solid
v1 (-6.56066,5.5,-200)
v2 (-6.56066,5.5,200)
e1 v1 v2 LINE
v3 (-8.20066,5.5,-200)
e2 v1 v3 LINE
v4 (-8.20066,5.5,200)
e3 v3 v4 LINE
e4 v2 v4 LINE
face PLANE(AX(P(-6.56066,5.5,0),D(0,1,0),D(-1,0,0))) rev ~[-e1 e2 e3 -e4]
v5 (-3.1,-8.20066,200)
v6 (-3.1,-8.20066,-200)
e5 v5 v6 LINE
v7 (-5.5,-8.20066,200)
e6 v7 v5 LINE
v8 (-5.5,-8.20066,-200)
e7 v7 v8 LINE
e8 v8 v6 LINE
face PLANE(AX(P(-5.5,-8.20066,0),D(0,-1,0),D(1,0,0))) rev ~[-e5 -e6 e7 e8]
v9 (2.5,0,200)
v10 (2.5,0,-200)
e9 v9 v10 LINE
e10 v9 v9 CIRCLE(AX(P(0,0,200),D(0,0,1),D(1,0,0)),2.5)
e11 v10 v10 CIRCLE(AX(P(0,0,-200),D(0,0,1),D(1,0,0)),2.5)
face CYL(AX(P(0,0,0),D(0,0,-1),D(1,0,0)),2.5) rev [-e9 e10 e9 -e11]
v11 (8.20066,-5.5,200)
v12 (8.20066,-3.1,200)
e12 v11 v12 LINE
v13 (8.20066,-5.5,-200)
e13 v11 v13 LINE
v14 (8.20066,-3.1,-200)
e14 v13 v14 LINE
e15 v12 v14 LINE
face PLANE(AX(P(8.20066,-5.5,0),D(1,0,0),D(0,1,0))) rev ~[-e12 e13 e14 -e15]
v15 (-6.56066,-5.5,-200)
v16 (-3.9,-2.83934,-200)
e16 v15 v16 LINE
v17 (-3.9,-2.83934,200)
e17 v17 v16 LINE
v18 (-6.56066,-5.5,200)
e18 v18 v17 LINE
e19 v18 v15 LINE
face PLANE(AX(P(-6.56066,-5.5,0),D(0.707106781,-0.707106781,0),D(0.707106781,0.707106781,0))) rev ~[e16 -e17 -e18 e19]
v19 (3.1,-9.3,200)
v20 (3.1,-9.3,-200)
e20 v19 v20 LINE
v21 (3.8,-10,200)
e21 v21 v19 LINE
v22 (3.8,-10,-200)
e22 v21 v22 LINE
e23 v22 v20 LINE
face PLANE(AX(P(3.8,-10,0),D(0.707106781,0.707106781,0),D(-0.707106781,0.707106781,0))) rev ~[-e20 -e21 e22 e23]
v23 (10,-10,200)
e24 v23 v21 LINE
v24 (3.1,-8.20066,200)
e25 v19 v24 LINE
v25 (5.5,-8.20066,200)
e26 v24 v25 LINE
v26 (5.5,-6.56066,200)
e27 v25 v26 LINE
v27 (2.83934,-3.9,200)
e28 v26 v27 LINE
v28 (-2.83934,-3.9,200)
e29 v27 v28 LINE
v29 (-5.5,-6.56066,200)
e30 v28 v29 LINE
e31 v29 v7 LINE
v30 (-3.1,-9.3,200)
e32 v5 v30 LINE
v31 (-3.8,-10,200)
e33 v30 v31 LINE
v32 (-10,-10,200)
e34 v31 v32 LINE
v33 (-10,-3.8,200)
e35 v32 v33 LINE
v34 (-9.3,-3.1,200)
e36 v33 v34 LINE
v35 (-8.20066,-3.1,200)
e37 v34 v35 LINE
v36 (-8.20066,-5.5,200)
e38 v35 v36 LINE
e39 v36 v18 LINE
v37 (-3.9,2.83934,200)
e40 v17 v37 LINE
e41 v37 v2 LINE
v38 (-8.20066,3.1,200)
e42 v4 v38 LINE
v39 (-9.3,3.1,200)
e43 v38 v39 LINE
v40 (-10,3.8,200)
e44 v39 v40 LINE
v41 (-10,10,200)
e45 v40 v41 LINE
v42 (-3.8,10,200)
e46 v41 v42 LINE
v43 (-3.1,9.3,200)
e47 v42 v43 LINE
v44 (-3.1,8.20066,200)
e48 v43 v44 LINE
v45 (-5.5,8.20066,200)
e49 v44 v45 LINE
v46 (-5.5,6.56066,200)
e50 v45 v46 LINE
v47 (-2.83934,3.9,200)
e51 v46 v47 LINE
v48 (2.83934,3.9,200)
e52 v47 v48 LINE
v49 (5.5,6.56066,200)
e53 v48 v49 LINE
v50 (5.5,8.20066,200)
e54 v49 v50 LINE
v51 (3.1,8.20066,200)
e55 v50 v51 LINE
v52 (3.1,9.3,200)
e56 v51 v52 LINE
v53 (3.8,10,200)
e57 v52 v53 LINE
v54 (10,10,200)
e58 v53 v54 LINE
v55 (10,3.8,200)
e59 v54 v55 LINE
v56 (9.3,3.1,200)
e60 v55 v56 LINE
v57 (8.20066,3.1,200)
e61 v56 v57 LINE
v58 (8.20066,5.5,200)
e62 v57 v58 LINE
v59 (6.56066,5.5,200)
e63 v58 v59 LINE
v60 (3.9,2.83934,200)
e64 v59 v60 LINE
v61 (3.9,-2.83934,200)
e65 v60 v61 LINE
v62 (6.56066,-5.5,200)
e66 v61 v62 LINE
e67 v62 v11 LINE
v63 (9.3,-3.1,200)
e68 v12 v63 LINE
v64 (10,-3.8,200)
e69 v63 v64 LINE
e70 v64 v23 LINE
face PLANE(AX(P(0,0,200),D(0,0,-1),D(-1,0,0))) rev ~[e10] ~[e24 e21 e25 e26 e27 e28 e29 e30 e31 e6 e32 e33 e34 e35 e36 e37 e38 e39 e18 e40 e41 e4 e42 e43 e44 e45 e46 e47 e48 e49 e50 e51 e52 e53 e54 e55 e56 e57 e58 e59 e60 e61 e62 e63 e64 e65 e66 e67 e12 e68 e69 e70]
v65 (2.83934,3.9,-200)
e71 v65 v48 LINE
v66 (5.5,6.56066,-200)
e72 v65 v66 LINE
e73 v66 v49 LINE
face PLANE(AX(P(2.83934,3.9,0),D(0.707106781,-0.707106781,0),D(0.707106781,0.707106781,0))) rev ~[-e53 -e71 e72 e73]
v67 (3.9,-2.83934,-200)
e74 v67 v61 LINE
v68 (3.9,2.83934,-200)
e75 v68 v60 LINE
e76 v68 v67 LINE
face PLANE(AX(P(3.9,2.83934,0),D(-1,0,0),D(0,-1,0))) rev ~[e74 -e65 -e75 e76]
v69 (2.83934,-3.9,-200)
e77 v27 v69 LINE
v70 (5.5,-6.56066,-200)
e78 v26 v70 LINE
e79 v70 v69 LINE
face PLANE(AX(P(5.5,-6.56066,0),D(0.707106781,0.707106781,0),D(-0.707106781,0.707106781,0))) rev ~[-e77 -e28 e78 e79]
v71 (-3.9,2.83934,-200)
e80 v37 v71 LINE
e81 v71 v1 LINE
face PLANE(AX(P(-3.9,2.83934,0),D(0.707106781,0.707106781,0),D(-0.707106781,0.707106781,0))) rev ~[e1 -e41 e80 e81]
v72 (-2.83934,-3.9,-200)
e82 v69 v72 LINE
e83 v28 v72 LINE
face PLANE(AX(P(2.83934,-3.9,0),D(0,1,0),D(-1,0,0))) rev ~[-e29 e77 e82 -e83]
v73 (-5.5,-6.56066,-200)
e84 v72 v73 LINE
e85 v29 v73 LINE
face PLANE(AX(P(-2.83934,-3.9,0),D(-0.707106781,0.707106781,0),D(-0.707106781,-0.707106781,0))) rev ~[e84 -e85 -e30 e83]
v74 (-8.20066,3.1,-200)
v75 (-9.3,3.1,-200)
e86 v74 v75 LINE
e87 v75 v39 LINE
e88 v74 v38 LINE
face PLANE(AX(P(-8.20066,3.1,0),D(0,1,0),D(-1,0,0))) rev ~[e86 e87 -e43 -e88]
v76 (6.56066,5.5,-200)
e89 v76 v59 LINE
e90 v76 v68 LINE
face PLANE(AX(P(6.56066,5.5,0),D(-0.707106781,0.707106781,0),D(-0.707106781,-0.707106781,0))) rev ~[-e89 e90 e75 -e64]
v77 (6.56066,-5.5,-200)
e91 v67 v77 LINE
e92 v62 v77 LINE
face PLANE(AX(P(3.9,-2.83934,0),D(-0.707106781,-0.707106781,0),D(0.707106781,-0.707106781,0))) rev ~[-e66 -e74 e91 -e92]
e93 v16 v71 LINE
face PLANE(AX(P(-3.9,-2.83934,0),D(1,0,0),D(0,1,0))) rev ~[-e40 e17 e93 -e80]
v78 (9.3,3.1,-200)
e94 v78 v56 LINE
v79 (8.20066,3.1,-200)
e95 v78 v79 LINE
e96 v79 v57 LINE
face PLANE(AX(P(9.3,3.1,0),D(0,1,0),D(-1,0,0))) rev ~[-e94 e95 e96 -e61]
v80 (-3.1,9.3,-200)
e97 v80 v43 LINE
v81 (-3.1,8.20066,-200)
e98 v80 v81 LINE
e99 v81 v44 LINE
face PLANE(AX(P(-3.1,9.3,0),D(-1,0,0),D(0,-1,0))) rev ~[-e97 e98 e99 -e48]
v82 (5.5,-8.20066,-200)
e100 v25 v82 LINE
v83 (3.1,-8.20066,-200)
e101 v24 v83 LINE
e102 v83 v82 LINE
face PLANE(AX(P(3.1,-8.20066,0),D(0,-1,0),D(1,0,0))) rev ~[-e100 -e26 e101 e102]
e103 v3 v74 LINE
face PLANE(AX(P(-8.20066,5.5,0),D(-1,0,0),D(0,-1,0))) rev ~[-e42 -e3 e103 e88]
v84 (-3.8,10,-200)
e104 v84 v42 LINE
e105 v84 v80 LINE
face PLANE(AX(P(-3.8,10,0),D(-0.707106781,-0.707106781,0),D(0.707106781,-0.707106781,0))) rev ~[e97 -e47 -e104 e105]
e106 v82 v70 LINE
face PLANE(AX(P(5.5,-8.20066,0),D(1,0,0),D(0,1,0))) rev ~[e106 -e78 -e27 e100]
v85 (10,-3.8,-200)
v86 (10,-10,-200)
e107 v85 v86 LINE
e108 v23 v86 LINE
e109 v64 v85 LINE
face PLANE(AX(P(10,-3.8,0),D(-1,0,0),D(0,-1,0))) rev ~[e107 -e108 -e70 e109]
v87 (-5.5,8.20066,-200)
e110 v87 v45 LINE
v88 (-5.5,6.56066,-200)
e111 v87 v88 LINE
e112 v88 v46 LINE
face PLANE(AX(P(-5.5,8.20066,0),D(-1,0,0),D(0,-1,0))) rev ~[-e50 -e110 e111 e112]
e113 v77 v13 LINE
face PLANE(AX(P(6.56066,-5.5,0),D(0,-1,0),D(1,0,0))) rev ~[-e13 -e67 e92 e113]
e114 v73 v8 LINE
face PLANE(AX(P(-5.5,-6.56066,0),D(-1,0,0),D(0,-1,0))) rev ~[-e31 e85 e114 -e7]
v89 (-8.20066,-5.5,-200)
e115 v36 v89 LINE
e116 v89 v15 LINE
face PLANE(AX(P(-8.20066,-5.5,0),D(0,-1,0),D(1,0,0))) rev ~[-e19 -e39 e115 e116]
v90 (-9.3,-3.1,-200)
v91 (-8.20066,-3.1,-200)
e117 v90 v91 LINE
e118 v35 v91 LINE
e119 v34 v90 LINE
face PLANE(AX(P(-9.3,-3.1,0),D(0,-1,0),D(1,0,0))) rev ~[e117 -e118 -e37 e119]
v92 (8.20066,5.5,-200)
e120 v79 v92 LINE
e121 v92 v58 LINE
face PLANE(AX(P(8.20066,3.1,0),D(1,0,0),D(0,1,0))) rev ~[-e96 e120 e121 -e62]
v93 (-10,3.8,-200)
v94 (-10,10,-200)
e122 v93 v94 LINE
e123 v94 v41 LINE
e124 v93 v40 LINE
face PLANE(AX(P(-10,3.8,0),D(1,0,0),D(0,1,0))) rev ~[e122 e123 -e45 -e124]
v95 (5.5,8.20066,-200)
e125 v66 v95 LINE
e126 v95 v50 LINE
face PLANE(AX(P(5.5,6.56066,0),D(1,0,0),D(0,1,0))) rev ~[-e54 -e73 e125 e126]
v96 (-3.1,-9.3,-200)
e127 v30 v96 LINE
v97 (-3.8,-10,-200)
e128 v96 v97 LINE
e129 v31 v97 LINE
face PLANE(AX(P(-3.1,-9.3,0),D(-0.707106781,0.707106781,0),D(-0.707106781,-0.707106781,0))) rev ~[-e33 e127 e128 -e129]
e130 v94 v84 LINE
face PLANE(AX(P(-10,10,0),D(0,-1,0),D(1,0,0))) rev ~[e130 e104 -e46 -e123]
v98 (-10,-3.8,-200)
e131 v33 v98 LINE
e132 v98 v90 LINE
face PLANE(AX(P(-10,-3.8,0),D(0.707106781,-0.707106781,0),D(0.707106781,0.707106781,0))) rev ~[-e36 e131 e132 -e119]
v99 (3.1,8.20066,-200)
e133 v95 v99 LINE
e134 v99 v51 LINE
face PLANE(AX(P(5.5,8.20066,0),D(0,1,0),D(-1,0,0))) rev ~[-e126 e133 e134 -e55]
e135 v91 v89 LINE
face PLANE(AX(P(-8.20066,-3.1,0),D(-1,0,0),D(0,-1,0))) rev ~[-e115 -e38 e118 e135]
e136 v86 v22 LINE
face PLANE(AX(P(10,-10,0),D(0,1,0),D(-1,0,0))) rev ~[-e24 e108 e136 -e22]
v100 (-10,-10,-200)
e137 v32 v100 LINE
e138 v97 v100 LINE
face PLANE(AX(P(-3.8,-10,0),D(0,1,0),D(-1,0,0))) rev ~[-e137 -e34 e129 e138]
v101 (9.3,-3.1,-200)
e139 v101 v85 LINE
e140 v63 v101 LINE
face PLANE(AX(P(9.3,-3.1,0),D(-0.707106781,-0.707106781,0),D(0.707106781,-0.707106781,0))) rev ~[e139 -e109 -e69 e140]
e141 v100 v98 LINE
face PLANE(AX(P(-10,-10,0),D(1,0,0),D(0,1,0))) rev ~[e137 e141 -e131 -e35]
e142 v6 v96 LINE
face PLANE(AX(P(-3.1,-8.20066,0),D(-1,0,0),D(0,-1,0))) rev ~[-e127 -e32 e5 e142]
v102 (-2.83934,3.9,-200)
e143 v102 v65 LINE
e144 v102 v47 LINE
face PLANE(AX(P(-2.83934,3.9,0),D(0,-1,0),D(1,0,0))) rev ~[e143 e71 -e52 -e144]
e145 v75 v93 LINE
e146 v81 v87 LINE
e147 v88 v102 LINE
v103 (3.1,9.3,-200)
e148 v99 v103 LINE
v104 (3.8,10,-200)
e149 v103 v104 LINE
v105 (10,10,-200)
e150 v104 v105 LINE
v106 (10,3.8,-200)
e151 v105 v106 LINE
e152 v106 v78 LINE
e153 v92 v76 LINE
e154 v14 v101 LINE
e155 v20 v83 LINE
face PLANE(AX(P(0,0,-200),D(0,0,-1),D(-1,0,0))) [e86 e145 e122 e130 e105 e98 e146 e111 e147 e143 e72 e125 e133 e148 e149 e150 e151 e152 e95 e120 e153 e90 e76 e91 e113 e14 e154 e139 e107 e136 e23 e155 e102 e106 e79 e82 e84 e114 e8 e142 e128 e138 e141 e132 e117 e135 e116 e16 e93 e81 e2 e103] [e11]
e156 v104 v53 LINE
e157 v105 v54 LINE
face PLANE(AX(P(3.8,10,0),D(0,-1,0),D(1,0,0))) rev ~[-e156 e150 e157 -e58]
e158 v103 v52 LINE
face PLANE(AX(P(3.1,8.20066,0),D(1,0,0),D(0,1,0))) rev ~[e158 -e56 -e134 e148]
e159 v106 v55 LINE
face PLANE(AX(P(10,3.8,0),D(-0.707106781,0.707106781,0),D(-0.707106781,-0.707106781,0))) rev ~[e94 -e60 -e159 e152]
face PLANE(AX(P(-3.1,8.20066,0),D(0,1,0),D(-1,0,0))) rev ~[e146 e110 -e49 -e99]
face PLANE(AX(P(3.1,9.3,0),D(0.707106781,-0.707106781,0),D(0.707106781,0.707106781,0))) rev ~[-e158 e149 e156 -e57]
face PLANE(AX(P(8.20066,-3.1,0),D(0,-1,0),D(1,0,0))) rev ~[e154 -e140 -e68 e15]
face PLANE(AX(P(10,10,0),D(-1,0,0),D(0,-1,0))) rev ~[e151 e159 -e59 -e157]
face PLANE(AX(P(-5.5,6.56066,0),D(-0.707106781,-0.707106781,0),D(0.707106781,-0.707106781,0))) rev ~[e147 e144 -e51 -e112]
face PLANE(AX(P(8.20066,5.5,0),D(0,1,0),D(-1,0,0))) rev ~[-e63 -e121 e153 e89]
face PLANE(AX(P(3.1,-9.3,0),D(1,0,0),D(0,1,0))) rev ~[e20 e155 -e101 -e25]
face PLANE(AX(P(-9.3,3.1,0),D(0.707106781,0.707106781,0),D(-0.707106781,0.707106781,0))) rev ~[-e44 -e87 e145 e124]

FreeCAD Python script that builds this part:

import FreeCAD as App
import Part
import Sketcher

V = App.Vector


def add_polygon(sketch, points):
    """Adds a closed chain of lines whose ends are joined by coincident constraints."""
    first, n = sketch.GeometryCount, len(points)
    for a, b in zip(points, points[1:] + points[:1]):
        sketch.addGeometry(Part.LineSegment(App.Vector(*a, 0), App.Vector(*b, 0)), False)
    for i in range(n):
        sketch.addConstraint(Sketcher.Constraint("Coincident", first + i, 2, first + (i + 1) % n, 1))

doc = App.newDocument("Part")
body = doc.addObject("PartDesign::Body", "Body")

# Sketch on XY plane
sketch1 = doc.addObject("Sketcher::SketchObject", "Sketch")
body.addObject(sketch1)
sketch1.AttachmentSupport = (doc.XY_Plane, [""])
sketch1.MapMode = "FlatFace"
add_polygon(sketch1, [(6.6, -5.5), (3.9, -2.8), (3.9, 2.8), (6.6, 5.5), (8.2, 5.5), (8.2, 3.1), (9.3, 3.1), (10, 3.8), (10, 10), (3.8, 10), (3.1, 9.3), (3.1, 8.2), (5.5, 8.2), (5.5, 6.6), (2.8, 3.9), (-2.8, 3.9), (-5.5, 6.6), (-5.5, 8.2), (-3.1, 8.2), (-3.1, 9.3), (-3.8, 10), (-10, 10), (-10, 3.8), (-9.3, 3.1), (-8.2, 3.1), (-8.2, 5.5), (-6.6, 5.5), (-3.9, 2.8), (-3.9, -2.8), (-6.6, -5.5), (-8.2, -5.5), (-8.2, -3.1), (-9.3, -3.1), (-10, -3.8), (-10, -10), (-3.8, -10), (-3.1, -9.3), (-3.1, -8.2), (-5.5, -8.2), (-5.5, -6.6), (-2.8, -3.9), (2.8, -3.9), (5.5, -6.6), (5.5, -8.2), (3.1, -8.2), (3.1, -9.3), (3.8, -10), (10, -10), (10, -3.8), (9.3, -3.1), (8.2, -3.1), (8.2, -5.5)])  # lines 0-51
sketch1.addGeometry(Part.Circle(V(0, 0, 0), V(0, 0, 1), 2.5), False)  # 52
sketch1.addConstraint(Sketcher.Constraint("Vertical", 1))
sketch1.addConstraint(Sketcher.Constraint("Horizontal", 3))
sketch1.addConstraint(Sketcher.Constraint("Vertical", 4))
sketch1.addConstraint(Sketcher.Constraint("Horizontal", 5))
sketch1.addConstraint(Sketcher.Constraint("Vertical", 7))
sketch1.addConstraint(Sketcher.Constraint("Horizontal", 8))
sketch1.addConstraint(Sketcher.Constraint("Vertical", 10))
sketch1.addConstraint(Sketcher.Constraint("Horizontal", 11))
sketch1.addConstraint(Sketcher.Constraint("Vertical", 12))
sketch1.addConstraint(Sketcher.Constraint("Horizontal", 14))
sketch1.addConstraint(Sketcher.Constraint("Vertical", 16))
sketch1.addConstraint(Sketcher.Constraint("Horizontal", 17))
sketch1.addConstraint(Sketcher.Constraint("Vertical", 18))
sketch1.addConstraint(Sketcher.Constraint("Horizontal", 20))
sketch1.addConstraint(Sketcher.Constraint("Vertical", 21))
sketch1.addConstraint(Sketcher.Constraint("Horizontal", 23))
sketch1.addConstraint(Sketcher.Constraint("Vertical", 24))
sketch1.addConstraint(Sketcher.Constraint("Horizontal", 25))
sketch1.addConstraint(Sketcher.Constraint("Vertical", 27))
sketch1.addConstraint(Sketcher.Constraint("Horizontal", 29))
sketch1.addConstraint(Sketcher.Constraint("Vertical", 30))
sketch1.addConstraint(Sketcher.Constraint("Horizontal", 31))
sketch1.addConstraint(Sketcher.Constraint("Vertical", 33))
sketch1.addConstraint(Sketcher.Constraint("Horizontal", 34))
sketch1.addConstraint(Sketcher.Constraint("Vertical", 36))
sketch1.addConstraint(Sketcher.Constraint("Horizontal", 37))
sketch1.addConstraint(Sketcher.Constraint("Vertical", 38))
sketch1.addConstraint(Sketcher.Constraint("Horizontal", 40))
sketch1.addConstraint(Sketcher.Constraint("Vertical", 42))
sketch1.addConstraint(Sketcher.Constraint("Horizontal", 43))
sketch1.addConstraint(Sketcher.Constraint("Vertical", 44))
sketch1.addConstraint(Sketcher.Constraint("Horizontal", 46))
sketch1.addConstraint(Sketcher.Constraint("Vertical", 47))
sketch1.addConstraint(Sketcher.Constraint("Horizontal", 49))
sketch1.addConstraint(Sketcher.Constraint("Vertical", 50))
sketch1.addConstraint(Sketcher.Constraint("Horizontal", 51))
sketch1.addConstraint(Sketcher.Constraint("Coincident", 52, 3, -1, 1))
sketch1.addConstraint(Sketcher.Constraint("Symmetric", 0, 2, 26, 2, -1, 1))
sketch1.addConstraint(Sketcher.Constraint("Symmetric", 2, 2, 28, 2, -1, 1))
sketch1.addConstraint(Sketcher.Constraint("Symmetric", 4, 2, 30, 2, -1, 1))
sketch1.addConstraint(Sketcher.Constraint("Symmetric", 6, 2, 32, 2, -1, 1))
sketch1.addConstraint(Sketcher.Constraint("Symmetric", 8, 2, 34, 2, -1, 1))
sketch1.addConstraint(Sketcher.Constraint("Symmetric", 9, 2, 35, 2, -1, 1))
sketch1.addConstraint(Sketcher.Constraint("Symmetric", 11, 2, 37, 2, -1, 1))
sketch1.addConstraint(Sketcher.Constraint("Symmetric", 13, 2, 39, 2, -1, 1))
sketch1.addConstraint(Sketcher.Constraint("Symmetric", 15, 2, 41, 2, -1, 1))
sketch1.addConstraint(Sketcher.Constraint("Symmetric", 17, 2, 43, 2, -1, 1))
sketch1.addConstraint(Sketcher.Constraint("Symmetric", 19, 2, 45, 2, -1, 1))
sketch1.addConstraint(Sketcher.Constraint("Symmetric", 21, 2, 47, 2, -1, 1))
sketch1.addConstraint(Sketcher.Constraint("Symmetric", 22, 2, 48, 2, -1, 1))
sketch1.addConstraint(Sketcher.Constraint("Symmetric", 24, 2, 50, 2, -1, 1))
sketch1.addConstraint(Sketcher.Constraint("Symmetric", 12, 2, 15, 2, -2))
sketch1.addConstraint(Sketcher.Constraint("Symmetric", 10, 2, 17, 2, -2))
sketch1.addConstraint(Sketcher.Constraint("Symmetric", 8, 2, 19, 2, -2))
sketch1.addConstraint(Sketcher.Constraint("Symmetric", 6, 2, 21, 2, -2))
sketch1.addConstraint(Sketcher.Constraint("Symmetric", 5, 2, 22, 2, -2))
sketch1.addConstraint(Sketcher.Constraint("Symmetric", 3, 2, 24, 2, -2))
sketch1.addConstraint(Sketcher.Constraint("Perpendicular", 0, 2))
sketch1.addConstraint(Sketcher.Constraint("Parallel", 2, 6))
sketch1.addConstraint(Sketcher.Constraint("Parallel", 6, 9))
sketch1.addConstraint(Sketcher.Constraint("Parallel", 9, 13))
sketch1.addConstraint(Sketcher.Constraint("Perpendicular", 13, 15))
sketch1.addConstraint(Sketcher.Constraint("Parallel", 15, 19))
sketch1.addConstraint(Sketcher.Constraint("Parallel", 19, 22))
sketch1.addConstraint(Sketcher.Constraint("Parallel", 22, 26))
sketch1.addConstraint(Sketcher.Constraint("Perpendicular", 26, 28))
sketch1.addConstraint(Sketcher.Constraint("Parallel", 28, 32))
sketch1.addConstraint(Sketcher.Constraint("Parallel", 35, 39))
sketch1.addConstraint(Sketcher.Constraint("Perpendicular", 39, 41))
sketch1.addConstraint(Sketcher.Constraint("Parallel", 41, 45))
sketch1.addConstraint(Sketcher.Constraint("Horizontal", 1, 2, 26, 2))
sketch1.addConstraint(Sketcher.Constraint("Equal", 40, 1))
sketch1.addConstraint(Sketcher.Constraint("Equal", 43, 4))
sketch1.addConstraint(Sketcher.Constraint("Equal", 46, 7))
sketch1.addConstraint(Sketcher.Constraint("Equal", 49, 10))
sketch1.addConstraint(Sketcher.Constraint("Equal", 51, 12))
sketch1.addConstraint(Sketcher.Constraint("Equal", 6, 9))
sketch1.addConstraint(Sketcher.Constraint("Equal", 2, 13))
sketch1.addConstraint(Sketcher.Constraint("Diameter", 52, 5.0))
sketch1.addConstraint(Sketcher.Constraint("DistanceX", 8, 2, 8, 1, 6.2))
sketch1.addConstraint(Sketcher.Constraint("DistanceX", 11, 1, 11, 2, 2.4))
sketch1.addConstraint(Sketcher.Constraint("DistanceX", -1, 1, 6, 2, 10.0))
sketch1.addConstraint(Sketcher.Constraint("DistanceX", 3, 1, 3, 2, 1.64))
sketch1.addConstraint(Sketcher.Constraint("DistanceX", -1, 1, 0, 2, 3.9))
sketch1.addConstraint(Sketcher.Constraint("DistanceY", -1, 1, 2, 2, 5.5))
sketch1.addConstraint(Sketcher.Constraint("DistanceX", 5, 1, 5, 2, 1.09934))
pad1 = doc.addObject("PartDesign::Pad", "Pad")
body.addObject(pad1)
pad1.Profile = sketch1
pad1.Length = 400
pad1.Midplane = True

doc.recompute()
